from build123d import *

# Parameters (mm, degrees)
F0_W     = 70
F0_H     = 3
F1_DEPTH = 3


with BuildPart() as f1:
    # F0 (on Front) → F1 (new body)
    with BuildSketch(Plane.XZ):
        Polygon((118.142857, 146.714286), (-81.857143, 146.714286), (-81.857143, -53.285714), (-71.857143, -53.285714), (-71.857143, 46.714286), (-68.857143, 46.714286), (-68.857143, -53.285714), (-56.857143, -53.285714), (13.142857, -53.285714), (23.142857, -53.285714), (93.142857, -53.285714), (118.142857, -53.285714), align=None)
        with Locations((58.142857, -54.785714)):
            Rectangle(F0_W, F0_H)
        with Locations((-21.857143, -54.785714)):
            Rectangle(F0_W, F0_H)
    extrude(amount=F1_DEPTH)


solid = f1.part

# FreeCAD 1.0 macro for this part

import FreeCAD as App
import Part
import Sketcher

V = App.Vector
Q = App.Units.Quantity


def add_polygon(sketch, points):
    """Adds a closed chain of lines whose ends are joined by coincident constraints."""
    first, n = sketch.GeometryCount, len(points)
    for a, b in zip(points, points[1:] + points[:1]):
        sketch.addGeometry(Part.LineSegment(App.Vector(*a, 0), App.Vector(*b, 0)), False)
    for i in range(n):
        sketch.addConstraint(Sketcher.Constraint("Coincident", first + i, 2, first + (i + 1) % n, 1))

doc = App.newDocument("Part")
body = doc.addObject("PartDesign::Body", "Body")

sketch1 = doc.addObject("Sketcher::SketchObject", "Sketch")
body.addObject(sketch1)
sketch1.AttachmentSupport = (doc.XZ_Plane, [""])
sketch1.MapMode = "FlatFace"
add_polygon(sketch1, [(118.142857, 146.714286), (-81.857143, 146.714286), (-81.857143, -53.285714), (-71.857143, -53.285714), (-71.857143, 46.714286), (-68.857143, 46.714286), (-68.857143, -53.285714), (-56.857143, -53.285714), (-56.857143, -56.285714), (13.142857, -56.285714), (13.142857, -53.285714), (23.142857, -53.285714), (23.142857, -56.285714), (93.142857, -56.285714), (93.142857, -53.285714), (118.142857, -53.285714)])
sketch1.addConstraint(Sketcher.Constraint("Horizontal", 0))
sketch1.addConstraint(Sketcher.Constraint("Vertical", 1))
sketch1.addConstraint(Sketcher.Constraint("Horizontal", 2))
sketch1.addConstraint(Sketcher.Constraint("Vertical", 3))
sketch1.addConstraint(Sketcher.Constraint("Horizontal", 4))
sketch1.addConstraint(Sketcher.Constraint("Vertical", 5))
sketch1.addConstraint(Sketcher.Constraint("Horizontal", 6))
sketch1.addConstraint(Sketcher.Constraint("Vertical", 7))
sketch1.addConstraint(Sketcher.Constraint("Horizontal", 8))
sketch1.addConstraint(Sketcher.Constraint("Vertical", 9))
sketch1.addConstraint(Sketcher.Constraint("Horizontal", 10))
sketch1.addConstraint(Sketcher.Constraint("Vertical", 11))
sketch1.addConstraint(Sketcher.Constraint("Horizontal", 12))
sketch1.addConstraint(Sketcher.Constraint("Vertical", 13))
sketch1.addConstraint(Sketcher.Constraint("Horizontal", 14))
sketch1.addConstraint(Sketcher.Constraint("Vertical", 15))
sketch1.addConstraint(Sketcher.Constraint("Horizontal", 2, 2, 5, 2))
sketch1.addConstraint(Sketcher.Constraint("Horizontal", 6, 2, 9, 2))
sketch1.addConstraint(Sketcher.Constraint("Horizontal", 8, 2, 11, 2))
sketch1.addConstraint(Sketcher.Constraint("Horizontal", 10, 2, 13, 2))
sketch1.addConstraint(Sketcher.Constraint("Equal", 2, 10))
sketch1.addConstraint(Sketcher.Constraint("Equal", 8, 12))
sketch1.addConstraint(Sketcher.Constraint("Equal", 0, 1))
sketch1.addConstraint(Sketcher.Constraint("Equal", 4, 7))
sketch1.addConstraint(Sketcher.Constraint("DistanceX", 0, 2, 0, 1, Q("200 mm")))
sketch1.addConstraint(Sketcher.Constraint("DistanceX", 2, 1, 2, 2, Q("10 mm")))
sketch1.addConstraint(Sketcher.Constraint("DistanceX", 4, 1, 4, 2, Q("3 mm")))
sketch1.addConstraint(Sketcher.Constraint("DistanceX", 6, 1, 6, 2, Q("12 mm")))
sketch1.addConstraint(Sketcher.Constraint("DistanceX", 8, 1, 8, 2, Q("70 mm")))
sketch1.addConstraint(Sketcher.Constraint("DistanceY", 3, 1, 3, 2, Q("100 mm")))
sketch1.addConstraint(Sketcher.Constraint("DistanceX", 0, 2, -1, 1, Q("81.857143 mm")))
sketch1.addConstraint(Sketcher.Constraint("DistanceY", -1, 1, 0, 2, Q("146.714286 mm")))
pad1 = doc.addObject("PartDesign::Pad", "Pad")
body.addObject(pad1)
pad1.Profile = sketch1
pad1.Length = 3

doc.recompute()
